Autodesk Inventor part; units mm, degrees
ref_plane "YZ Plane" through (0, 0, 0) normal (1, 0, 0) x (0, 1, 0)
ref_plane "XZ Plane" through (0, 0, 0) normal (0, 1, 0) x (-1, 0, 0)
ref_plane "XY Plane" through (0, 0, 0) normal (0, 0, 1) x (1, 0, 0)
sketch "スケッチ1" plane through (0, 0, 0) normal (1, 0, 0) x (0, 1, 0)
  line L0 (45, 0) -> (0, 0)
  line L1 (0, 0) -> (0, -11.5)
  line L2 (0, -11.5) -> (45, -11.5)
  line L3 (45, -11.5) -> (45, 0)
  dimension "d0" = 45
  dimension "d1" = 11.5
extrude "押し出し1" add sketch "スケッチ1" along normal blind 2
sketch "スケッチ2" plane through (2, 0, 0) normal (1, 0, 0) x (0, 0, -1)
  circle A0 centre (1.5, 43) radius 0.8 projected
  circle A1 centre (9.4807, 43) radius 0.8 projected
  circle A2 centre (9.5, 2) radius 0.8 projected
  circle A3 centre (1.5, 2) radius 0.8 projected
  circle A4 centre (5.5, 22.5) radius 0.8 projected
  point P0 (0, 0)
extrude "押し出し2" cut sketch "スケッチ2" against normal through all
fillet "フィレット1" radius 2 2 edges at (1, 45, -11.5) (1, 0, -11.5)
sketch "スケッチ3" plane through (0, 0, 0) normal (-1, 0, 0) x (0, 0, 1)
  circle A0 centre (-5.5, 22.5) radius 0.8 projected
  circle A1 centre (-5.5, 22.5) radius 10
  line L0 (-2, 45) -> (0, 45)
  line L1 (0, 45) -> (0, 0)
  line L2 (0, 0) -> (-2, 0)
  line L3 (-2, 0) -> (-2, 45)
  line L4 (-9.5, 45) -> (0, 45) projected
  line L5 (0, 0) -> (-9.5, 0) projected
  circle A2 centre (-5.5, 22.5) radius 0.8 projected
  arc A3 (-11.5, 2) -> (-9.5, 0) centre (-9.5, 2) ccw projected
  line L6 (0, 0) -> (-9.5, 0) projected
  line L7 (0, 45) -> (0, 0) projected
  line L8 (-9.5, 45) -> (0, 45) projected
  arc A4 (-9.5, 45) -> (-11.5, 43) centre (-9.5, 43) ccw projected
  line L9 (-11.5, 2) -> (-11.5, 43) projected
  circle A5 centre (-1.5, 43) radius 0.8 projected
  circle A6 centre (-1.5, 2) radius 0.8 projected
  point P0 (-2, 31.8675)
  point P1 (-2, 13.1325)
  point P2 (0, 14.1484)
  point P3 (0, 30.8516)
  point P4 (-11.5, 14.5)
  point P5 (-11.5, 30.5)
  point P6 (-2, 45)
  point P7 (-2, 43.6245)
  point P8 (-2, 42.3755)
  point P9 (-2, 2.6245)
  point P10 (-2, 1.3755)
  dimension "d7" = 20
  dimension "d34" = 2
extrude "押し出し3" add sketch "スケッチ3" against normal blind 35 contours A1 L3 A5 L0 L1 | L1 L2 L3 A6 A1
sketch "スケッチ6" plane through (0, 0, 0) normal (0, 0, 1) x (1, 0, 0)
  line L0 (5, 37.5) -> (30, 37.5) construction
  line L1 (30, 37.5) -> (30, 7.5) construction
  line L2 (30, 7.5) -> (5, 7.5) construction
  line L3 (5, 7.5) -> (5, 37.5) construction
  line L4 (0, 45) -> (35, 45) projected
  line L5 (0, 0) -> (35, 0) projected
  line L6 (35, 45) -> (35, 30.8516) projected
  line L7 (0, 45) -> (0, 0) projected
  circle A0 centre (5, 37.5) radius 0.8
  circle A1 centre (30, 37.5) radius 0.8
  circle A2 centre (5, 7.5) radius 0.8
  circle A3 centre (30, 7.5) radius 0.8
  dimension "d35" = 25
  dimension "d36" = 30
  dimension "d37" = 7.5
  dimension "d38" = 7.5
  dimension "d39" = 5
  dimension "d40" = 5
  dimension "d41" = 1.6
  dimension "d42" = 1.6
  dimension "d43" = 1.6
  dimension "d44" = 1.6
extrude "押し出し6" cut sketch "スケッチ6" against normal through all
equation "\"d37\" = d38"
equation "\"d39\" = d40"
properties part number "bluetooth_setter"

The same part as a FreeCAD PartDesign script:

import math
import FreeCAD as App
import Part
import Sketcher

V = App.Vector


def edges_at(feature, points):
    """Names of the edges that pass closest to the given points."""
    edges = feature.Shape.Edges
    near = lambda p: min(range(len(edges)), key=lambda i: edges[i].distToShape(Part.Vertex(*p))[0])
    return sorted({f"Edge{near(p) + 1}" for p in points})


def add_polygon(sketch, points):
    """Adds a closed chain of lines whose ends are joined by coincident constraints."""
    first, n = sketch.GeometryCount, len(points)
    for a, b in zip(points, points[1:] + points[:1]):
        sketch.addGeometry(Part.LineSegment(App.Vector(*a, 0), App.Vector(*b, 0)), False)
    for i in range(n):
        sketch.addConstraint(Sketcher.Constraint("Coincident", first + i, 2, first + (i + 1) % n, 1))

doc = App.newDocument("Part")
body = doc.addObject("PartDesign::Body", "Body")

# Sketch on YZ plane
sketch1 = body.newObject("Sketcher::SketchObject", "Sketch")
sketch1.AttachmentSupport = (doc.getObject("YZ_Plane"), [""])
sketch1.MapMode = "FlatFace"
add_polygon(sketch1, [(45, -11.5), (45, 0), (0, 0), (0, -11.5)])  # lines 0-3
sketch1.addConstraint([
    Sketcher.Constraint("Vertical", 0),
    Sketcher.Constraint("Horizontal", 1),
    Sketcher.Constraint("Vertical", 2),
    Sketcher.Constraint("Horizontal", 3),
    Sketcher.Constraint("Coincident", 1, 2, -1, 1),
    Sketcher.Constraint("DistanceX", 1, 2, 1, 1, 45.0),
    Sketcher.Constraint("DistanceY", 0, 1, 0, 2, 11.5),
])
pad1 = body.newObject("PartDesign::Pad", "Pad")
pad1.Profile = sketch1
pad1.Length = 2

# Sketch on YZ plane
sketch2 = body.newObject("Sketcher::SketchObject", "Sketch001")
sketch2.AttachmentSupport = (doc.getObject("YZ_Plane"), [""])
sketch2.MapMode = "FlatFace"
sketch2.AttachmentOffset = App.Placement(V(0, 0, 2), App.Rotation())
sketch2.addGeometry([
    Part.Circle(V(43, -1.5, 0), V(0, 0, 1), 0.8),  # 0
    Part.Circle(V(43, -9.4807, 0), V(0, 0, 1), 0.8),  # 1
    Part.Circle(V(2, -9.5, 0), V(0, 0, 1), 0.8),  # 2
    Part.Circle(V(2, -1.5, 0), V(0, 0, 1), 0.8),  # 3
    Part.Circle(V(22.5, -5.5, 0), V(0, 0, 1), 0.8),  # 4
], False)
sketch2.addConstraint([
    Sketcher.Constraint("Equal", 0, 1),
    Sketcher.Constraint("Equal", 1, 2),
    Sketcher.Constraint("Equal", 2, 3),
    Sketcher.Constraint("Equal", 3, 4),
    Sketcher.Constraint("Horizontal", 0, 3, 3, 3),
    Sketcher.Constraint("Vertical", 0, 3, 1, 3),
    Sketcher.Constraint("Vertical", 2, 3, 3, 3),
    Sketcher.Constraint("Diameter", 0, 1.6),
    Sketcher.Constraint("DistanceX", -1, 1, 0, 3, 43.0),
    Sketcher.Constraint("DistanceX", -1, 1, 2, 3, 2.0),
    Sketcher.Constraint("DistanceY", 2, 3, 0, 3, 8.0),
    Sketcher.Constraint("DistanceY", 4, 3, 0, 3, 4.0),
    Sketcher.Constraint("DistanceY", 0, 3, -1, 1, 1.5),
    Sketcher.Constraint("DistanceX", -1, 1, 4, 3, 22.5),
    Sketcher.Constraint("DistanceY", 1, 3, -1, 1, 9.4807),
])
pocket1 = body.newObject("PartDesign::Pocket", "Pocket")
pocket1.Profile = sketch2
pocket1.Type = "ThroughAll"
doc.recompute()

fillet = body.newObject("PartDesign::Fillet", "Fillet")
fillet.Base = (pocket1, edges_at(pocket1, [(1, 45, -11.5), (1, 0, -11.5)]))
fillet.Radius = 2

# Sketch on YZ plane
sketch3 = body.newObject("Sketcher::SketchObject", "Sketch002")
sketch3.AttachmentSupport = (doc.getObject("YZ_Plane"), [""])
sketch3.MapMode = "FlatFace"
sketch3.addGeometry([
    Part.ArcOfCircle(Part.Circle(V(22.5, -5.5, 0), V(0, 0, 1), 10), math.radians(20.487315), math.radians(33.367013)),  # 0
    Part.LineSegment(V(30.851647, 0, 0), V(45, 0, 0)),  # 1
    Part.LineSegment(V(45, 0, 0), V(45, -2, 0)),  # 2
    Part.LineSegment(V(45, -2, 0), V(43.6245, -2, 0)),  # 3
    Part.ArcOfCircle(Part.Circle(V(43, -1.5, 0), V(0, 0, 1), 0.8), math.radians(-38.682187), math.radians(218.682187)),  # 4
    Part.LineSegment(V(42.3755, -2, 0), V(31.867497, -2, 0)),  # 5
    Part.LineSegment(V(0, 0, 0), V(14.148353, 0, 0)),  # 6
    Part.ArcOfCircle(Part.Circle(V(22.5, -5.5, 0), V(0, 0, 1), 10), math.radians(146.632987), math.radians(159.512685)),  # 7
    Part.LineSegment(V(13.132503, -2, 0), V(2.6245, -2, 0)),  # 8
    Part.ArcOfCircle(Part.Circle(V(2, -1.5, 0), V(0, 0, 1), 0.8), math.radians(-38.682187), math.radians(218.682187)),  # 9
    Part.LineSegment(V(1.3755, -2, 0), V(0, -2, 0)),  # 10
    Part.LineSegment(V(0, -2, 0), V(0, 0, 0)),  # 11
], False)
sketch3.addConstraint([
    Sketcher.Constraint("Coincident", 0, 2, 1, 1),
    Sketcher.Constraint("Coincident", 1, 2, 2, 1),
    Sketcher.Constraint("Coincident", 2, 2, 3, 1),
    Sketcher.Constraint("Coincident", 3, 2, 4, 1),
    Sketcher.Constraint("Coincident", 4, 2, 5, 1),
    Sketcher.Constraint("Coincident", 5, 2, 0, 1),
    Sketcher.Constraint("Coincident", 6, 2, 7, 1),
    Sketcher.Constraint("Coincident", 7, 2, 8, 1),
    Sketcher.Constraint("Coincident", 8, 2, 9, 1),
    Sketcher.Constraint("Coincident", 9, 2, 10, 1),
    Sketcher.Constraint("Coincident", 10, 2, 11, 1),
    Sketcher.Constraint("Coincident", 11, 2, 6, 1),
    Sketcher.Constraint("Horizontal", 1),
    Sketcher.Constraint("Vertical", 2),
    Sketcher.Constraint("Horizontal", 3),
    Sketcher.Constraint("Horizontal", 5),
    Sketcher.Constraint("Horizontal", 6),
    Sketcher.Constraint("Horizontal", 8),
    Sketcher.Constraint("Horizontal", 10),
    Sketcher.Constraint("Vertical", 11),
    Sketcher.Constraint("Coincident", 11, 2, -1, 1),
    Sketcher.Constraint("Coincident", 7, 3, 0, 3),
    Sketcher.Constraint("Equal", 0, 7),
    Sketcher.Constraint("Equal", 4, 9),
    Sketcher.Constraint("PointOnObject", 0, 2, -1),
    Sketcher.Constraint("Horizontal", 4, 3, 9, 3),
    Sketcher.Constraint("Horizontal", 3, 2, 4, 2),
    Sketcher.Constraint("Horizontal", 5, 2, 7, 2),
    Sketcher.Constraint("Horizontal", 8, 2, 9, 2),
    Sketcher.Constraint("Equal", 1, 6),
    Sketcher.Constraint("Equal", 5, 8),
    Sketcher.Constraint("Radius", 0, 10.0),
    Sketcher.Constraint("DistanceY", 2, 2, 2, 1, 2.0),
    Sketcher.Constraint("DistanceX", -1, 1, 9, 3, 2.0),
    Sketcher.Constraint("Radius", 4, 0.8),
    Sketcher.Constraint("DistanceX", -1, 1, 4, 3, 43.0),
    Sketcher.Constraint("DistanceY", 0, 3, 4, 3, 4.0),
    Sketcher.Constraint("DistanceY", 0, 3, -1, 1, 5.5),
])
pad2 = body.newObject("PartDesign::Pad", "Pad001")
pad2.Profile = sketch3
pad2.Length = 35

# Sketch on XY plane
sketch4 = body.newObject("Sketcher::SketchObject", "Sketch003")
sketch4.AttachmentSupport = (doc.getObject("XY_Plane"), [""])
sketch4.MapMode = "FlatFace"
sketch4.addGeometry([
    Part.Circle(V(5, 37.5, 0), V(0, 0, 1), 0.8),
    Part.Circle(V(30, 37.5, 0), V(0, 0, 1), 0.8),
    Part.Circle(V(5, 7.5, 0), V(0, 0, 1), 0.8),
    Part.Circle(V(30, 7.5, 0), V(0, 0, 1), 0.8),
], False)
sketch4.addConstraint([
    Sketcher.Constraint("Equal", 0, 1),
    Sketcher.Constraint("Equal", 1, 2),
    Sketcher.Constraint("Equal", 2, 3),
    Sketcher.Constraint("Horizontal", 0, 3, 1, 3),
    Sketcher.Constraint("Horizontal", 2, 3, 3, 3),
    Sketcher.Constraint("Vertical", 0, 3, 2, 3),
    Sketcher.Constraint("Vertical", 1, 3, 3, 3),
    Sketcher.Constraint("Diameter", 0, 1.6),
    Sketcher.Constraint("DistanceX", -1, 1, 0, 3, 5.0),
    Sketcher.Constraint("DistanceX", -1, 1, 1, 3, 30.0),
    Sketcher.Constraint("DistanceY", 2, 3, 0, 3, 30.0),
    Sketcher.Constraint("DistanceY", -1, 1, 2, 3, 7.5),
])
pocket2 = body.newObject("PartDesign::Pocket", "Pocket001")
pocket2.Profile = sketch4
pocket2.Type = "ThroughAll"

doc.recompute()
